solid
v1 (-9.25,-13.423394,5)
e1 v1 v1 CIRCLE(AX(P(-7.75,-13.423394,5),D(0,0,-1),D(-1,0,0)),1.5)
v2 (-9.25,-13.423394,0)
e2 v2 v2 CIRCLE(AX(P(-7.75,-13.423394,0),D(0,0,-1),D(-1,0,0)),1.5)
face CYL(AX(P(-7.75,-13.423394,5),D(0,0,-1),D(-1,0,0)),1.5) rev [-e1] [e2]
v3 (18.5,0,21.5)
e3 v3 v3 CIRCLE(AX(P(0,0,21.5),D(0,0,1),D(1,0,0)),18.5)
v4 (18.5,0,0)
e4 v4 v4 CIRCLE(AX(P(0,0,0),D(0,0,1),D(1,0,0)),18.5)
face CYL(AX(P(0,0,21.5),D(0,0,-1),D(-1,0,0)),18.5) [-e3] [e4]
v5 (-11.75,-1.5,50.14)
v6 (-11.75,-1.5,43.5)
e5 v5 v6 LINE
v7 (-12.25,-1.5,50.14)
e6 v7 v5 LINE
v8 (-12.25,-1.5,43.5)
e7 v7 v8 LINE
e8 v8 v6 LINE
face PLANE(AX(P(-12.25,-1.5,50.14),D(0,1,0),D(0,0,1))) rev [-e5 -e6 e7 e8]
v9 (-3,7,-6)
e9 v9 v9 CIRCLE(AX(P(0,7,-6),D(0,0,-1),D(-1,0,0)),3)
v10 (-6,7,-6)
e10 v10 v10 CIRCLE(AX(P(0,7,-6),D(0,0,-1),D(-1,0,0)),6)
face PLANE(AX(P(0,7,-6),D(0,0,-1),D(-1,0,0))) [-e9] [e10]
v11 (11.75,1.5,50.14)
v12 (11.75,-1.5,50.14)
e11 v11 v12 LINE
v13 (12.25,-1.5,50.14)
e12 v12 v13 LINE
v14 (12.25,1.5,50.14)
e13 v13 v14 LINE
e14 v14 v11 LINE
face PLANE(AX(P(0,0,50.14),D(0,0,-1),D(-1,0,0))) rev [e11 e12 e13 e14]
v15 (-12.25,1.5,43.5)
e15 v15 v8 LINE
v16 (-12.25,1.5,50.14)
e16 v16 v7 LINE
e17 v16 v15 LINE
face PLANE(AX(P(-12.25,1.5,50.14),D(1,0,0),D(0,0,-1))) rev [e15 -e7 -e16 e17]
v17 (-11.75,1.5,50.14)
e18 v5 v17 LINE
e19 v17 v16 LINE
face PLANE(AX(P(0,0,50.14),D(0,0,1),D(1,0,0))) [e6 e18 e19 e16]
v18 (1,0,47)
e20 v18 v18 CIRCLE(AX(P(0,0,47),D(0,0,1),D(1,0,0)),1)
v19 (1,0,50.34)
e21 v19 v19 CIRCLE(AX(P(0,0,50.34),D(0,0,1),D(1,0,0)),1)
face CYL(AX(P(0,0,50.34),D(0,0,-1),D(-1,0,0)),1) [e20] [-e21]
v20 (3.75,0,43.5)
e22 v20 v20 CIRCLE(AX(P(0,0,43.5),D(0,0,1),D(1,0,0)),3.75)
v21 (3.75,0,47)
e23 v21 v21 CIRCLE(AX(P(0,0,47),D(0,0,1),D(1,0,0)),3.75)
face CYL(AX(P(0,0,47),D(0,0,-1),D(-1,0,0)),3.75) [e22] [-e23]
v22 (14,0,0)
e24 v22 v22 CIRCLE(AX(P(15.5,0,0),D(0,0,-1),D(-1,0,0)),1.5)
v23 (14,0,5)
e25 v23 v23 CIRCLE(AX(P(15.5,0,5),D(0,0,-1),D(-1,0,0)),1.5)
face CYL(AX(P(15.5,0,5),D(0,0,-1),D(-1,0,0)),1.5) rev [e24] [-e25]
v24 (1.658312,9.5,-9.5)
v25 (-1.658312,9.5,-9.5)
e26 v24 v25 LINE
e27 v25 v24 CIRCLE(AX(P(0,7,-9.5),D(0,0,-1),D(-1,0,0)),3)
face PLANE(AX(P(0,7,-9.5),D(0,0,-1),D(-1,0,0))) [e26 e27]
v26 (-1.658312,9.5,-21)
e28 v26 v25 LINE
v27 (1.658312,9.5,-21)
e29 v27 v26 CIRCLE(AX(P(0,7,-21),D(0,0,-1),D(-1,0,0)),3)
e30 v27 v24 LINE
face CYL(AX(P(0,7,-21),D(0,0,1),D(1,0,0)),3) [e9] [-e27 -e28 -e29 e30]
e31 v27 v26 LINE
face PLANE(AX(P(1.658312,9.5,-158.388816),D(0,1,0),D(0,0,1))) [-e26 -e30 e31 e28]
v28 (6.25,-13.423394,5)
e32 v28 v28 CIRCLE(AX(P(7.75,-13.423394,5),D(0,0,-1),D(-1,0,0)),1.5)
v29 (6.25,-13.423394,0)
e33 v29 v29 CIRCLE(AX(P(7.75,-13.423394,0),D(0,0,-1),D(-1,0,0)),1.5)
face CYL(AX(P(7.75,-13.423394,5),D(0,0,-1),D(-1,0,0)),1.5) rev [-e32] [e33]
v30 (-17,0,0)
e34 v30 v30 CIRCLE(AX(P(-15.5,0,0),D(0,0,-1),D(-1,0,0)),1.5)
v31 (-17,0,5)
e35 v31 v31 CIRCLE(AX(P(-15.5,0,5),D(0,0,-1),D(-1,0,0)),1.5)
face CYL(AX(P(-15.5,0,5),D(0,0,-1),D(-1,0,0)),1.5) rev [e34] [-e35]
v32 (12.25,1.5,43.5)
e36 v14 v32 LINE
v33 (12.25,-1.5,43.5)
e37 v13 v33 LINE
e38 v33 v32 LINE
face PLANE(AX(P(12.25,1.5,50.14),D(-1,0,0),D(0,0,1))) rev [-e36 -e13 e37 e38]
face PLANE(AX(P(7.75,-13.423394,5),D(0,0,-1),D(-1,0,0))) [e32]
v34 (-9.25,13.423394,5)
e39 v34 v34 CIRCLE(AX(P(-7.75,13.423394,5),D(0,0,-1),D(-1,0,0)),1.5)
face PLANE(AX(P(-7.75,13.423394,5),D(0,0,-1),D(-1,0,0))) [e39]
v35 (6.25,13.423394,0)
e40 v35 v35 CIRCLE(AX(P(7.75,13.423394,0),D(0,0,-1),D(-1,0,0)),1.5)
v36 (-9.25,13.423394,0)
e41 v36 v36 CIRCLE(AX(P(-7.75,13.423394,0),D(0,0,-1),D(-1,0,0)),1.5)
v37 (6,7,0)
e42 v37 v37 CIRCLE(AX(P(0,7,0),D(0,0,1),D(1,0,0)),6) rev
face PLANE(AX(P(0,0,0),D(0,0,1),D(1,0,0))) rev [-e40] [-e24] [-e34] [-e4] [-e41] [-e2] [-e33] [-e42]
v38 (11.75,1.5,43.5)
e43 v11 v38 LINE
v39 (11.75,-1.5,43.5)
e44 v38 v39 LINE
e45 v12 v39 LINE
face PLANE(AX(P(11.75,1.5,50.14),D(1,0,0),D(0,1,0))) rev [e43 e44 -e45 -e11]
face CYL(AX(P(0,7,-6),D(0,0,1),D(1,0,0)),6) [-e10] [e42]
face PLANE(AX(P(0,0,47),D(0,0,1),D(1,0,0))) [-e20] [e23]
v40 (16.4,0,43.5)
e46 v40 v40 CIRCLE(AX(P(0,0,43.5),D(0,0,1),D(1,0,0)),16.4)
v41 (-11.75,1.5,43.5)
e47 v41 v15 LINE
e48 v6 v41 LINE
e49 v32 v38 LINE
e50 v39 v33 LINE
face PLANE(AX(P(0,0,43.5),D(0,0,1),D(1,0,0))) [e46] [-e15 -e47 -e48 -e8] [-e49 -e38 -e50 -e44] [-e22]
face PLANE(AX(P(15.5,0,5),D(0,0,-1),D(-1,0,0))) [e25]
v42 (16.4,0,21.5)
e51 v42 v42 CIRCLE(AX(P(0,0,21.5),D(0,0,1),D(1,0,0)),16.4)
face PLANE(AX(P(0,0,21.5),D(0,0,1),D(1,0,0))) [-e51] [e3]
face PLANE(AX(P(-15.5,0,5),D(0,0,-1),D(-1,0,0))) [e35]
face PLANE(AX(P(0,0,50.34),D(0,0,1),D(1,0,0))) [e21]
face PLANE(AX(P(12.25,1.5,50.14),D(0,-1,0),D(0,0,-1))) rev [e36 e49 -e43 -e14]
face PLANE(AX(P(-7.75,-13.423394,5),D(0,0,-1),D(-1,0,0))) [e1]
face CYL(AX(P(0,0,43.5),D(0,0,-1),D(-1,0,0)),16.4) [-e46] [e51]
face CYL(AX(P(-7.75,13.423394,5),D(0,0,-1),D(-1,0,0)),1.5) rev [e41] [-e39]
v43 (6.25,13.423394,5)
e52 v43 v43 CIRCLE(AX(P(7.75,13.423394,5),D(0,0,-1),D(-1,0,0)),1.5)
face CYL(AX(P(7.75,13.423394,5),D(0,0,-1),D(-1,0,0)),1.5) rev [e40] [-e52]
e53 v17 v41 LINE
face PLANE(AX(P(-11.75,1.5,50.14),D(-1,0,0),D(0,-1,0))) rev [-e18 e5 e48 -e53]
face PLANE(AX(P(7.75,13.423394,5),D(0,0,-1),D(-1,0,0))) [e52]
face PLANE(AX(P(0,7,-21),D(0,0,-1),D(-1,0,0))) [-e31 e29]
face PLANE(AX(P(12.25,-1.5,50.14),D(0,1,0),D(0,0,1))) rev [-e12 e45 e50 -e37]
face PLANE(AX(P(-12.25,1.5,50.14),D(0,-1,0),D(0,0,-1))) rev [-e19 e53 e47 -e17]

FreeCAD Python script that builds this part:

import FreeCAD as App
import Part
import Sketcher
from FreeCAD import Vector
Q = App.Units.Quantity


def add_polygon(sketch, points):
    """Adds a closed chain of lines whose ends are joined by coincident constraints."""
    first, n = sketch.GeometryCount, len(points)
    for a, b in zip(points, points[1:] + points[:1]):
        sketch.addGeometry(Part.LineSegment(App.Vector(*a, 0), App.Vector(*b, 0)), False)
    for i in range(n):
        sketch.addConstraint(Sketcher.Constraint("Coincident", first + i, 2, first + (i + 1) % n, 1))

doc = App.newDocument("Part")
body = doc.addObject("PartDesign::Body", "Body")

# Sketch on XY plane
sketch1 = body.newObject("Sketcher::SketchObject", "Sketch")
sketch1.AttachmentSupport = (doc.getObject("XY_Plane"), [""])
sketch1.MapMode = "FlatFace"
sketch1.addGeometry(Part.Circle(Vector(0, 0, 0), Vector(0, 0, 1), 18), False)
sketch1.addConstraint(Sketcher.Constraint("Coincident", 0, 3, -1, 1))
sketch1.addConstraint(Sketcher.Constraint("Diameter", 0, Q("37 mm")))
pad1 = body.newObject("PartDesign::Pad", "Pad")
pad1.Profile = sketch1
pad1.Length = 21.5

# Sketch on XY plane
sketch2 = body.newObject("Sketcher::SketchObject", "Sketch001")
sketch2.AttachmentSupport = (doc.getObject("XY_Plane"), [""])
sketch2.MapMode = "FlatFace"
sketch2.addGeometry(Part.Circle(Vector(0, 7, 0), Vector(0, 0, 1), 6), False)
sketch2.addConstraint(Sketcher.Constraint("PointOnObject", 0, 3, -2))
sketch2.addConstraint(Sketcher.Constraint("Diameter", 0, Q("12 mm")))
sketch2.addConstraint(Sketcher.Constraint("DistanceY", -1, 1, 0, 3, Q("7 mm")))
pad2 = body.newObject("PartDesign::Pad", "Pad001")
pad2.Profile = sketch2
pad2.Length = 6
pad2.Reversed = True

# Sketch on XY plane
sketch3 = body.newObject("Sketcher::SketchObject", "Sketch002")
sketch3.AttachmentSupport = (doc.getObject("XY_Plane"), [""])
sketch3.MapMode = "FlatFace"
sketch3.AttachmentOffset = App.Placement(Vector(0, 0, -6), App.Rotation())
sketch3.addGeometry(Part.Circle(Vector(0, 7, 0), Vector(0, 0, 1), 3), False)
sketch3.addConstraint(Sketcher.Constraint("PointOnObject", 0, 3, -2))
sketch3.addConstraint(Sketcher.Constraint("Diameter", 0, Q("6 mm")))
sketch3.addConstraint(Sketcher.Constraint("DistanceY", -1, 1, 0, 3, Q("7 mm")))
pad3 = body.newObject("PartDesign::Pad", "Pad002")
pad3.Profile = sketch3
pad3.Length = 15
pad3.Reversed = True

# Sketch on XY plane
sketch4 = body.newObject("Sketcher::SketchObject", "Sketch003")
sketch4.AttachmentSupport = (doc.getObject("XY_Plane"), [""])
sketch4.MapMode = "FlatFace"
sketch4.AttachmentOffset = App.Placement(Vector(0, 0, -21), App.Rotation())
add_polygon(sketch4, [(81, 10), (-81, 10), (-81, 168), (81, 168)])  # lines 0-3
sketch4.addConstraint(Sketcher.Constraint("Horizontal", 0))
sketch4.addConstraint(Sketcher.Constraint("Vertical", 1))
sketch4.addConstraint(Sketcher.Constraint("Horizontal", 2))
sketch4.addConstraint(Sketcher.Constraint("Vertical", 3))
sketch4.addConstraint(Sketcher.Constraint("DistanceY", -1, 1, 0, 2, Q("9.5 mm")))
sketch4.addConstraint(Sketcher.Constraint("DistanceX", 0, 2, 0, 1, Q("161.32286 mm")))
sketch4.addConstraint(Sketcher.Constraint("DistanceY", 1, 1, 1, 2, Q("158.006235 mm")))
sketch4.addConstraint(Sketcher.Constraint("DistanceX", 0, 2, -1, 1, Q("80.66143 mm")))
pocket1 = body.newObject("PartDesign::Pocket", "Pocket")
pocket1.Profile = sketch4
pocket1.Type = "TwoLengths"
pocket1.Length = 1
pocket1.Length2 = 11.5

# Sketch on XY plane
sketch5 = body.newObject("Sketcher::SketchObject", "Sketch004")
sketch5.AttachmentSupport = (doc.getObject("XY_Plane"), [""])
sketch5.MapMode = "FlatFace"
sketch5.addGeometry(Part.Circle(Vector(-15.5, 0, 0), Vector(0, 0, 1), 1.5), False)
sketch5.addGeometry(Part.Circle(Vector(-7.8, -13.4, 0), Vector(0, 0, 1), 1.5), False)
sketch5.addGeometry(Part.Circle(Vector(7.8, -13.4, 0), Vector(0, 0, 1), 1.5), False)
sketch5.addGeometry(Part.Circle(Vector(15.5, 0, 0), Vector(0, 0, 1), 1.5), False)
sketch5.addGeometry(Part.Circle(Vector(7.8, 13.4, 0), Vector(0, 0, 1), 1.5), False)
sketch5.addGeometry(Part.Circle(Vector(-7.8, 13.4, 0), Vector(0, 0, 1), 1.5), False)
sketch5.addConstraint(Sketcher.Constraint("Equal", 0, 1))
sketch5.addConstraint(Sketcher.Constraint("Equal", 1, 2))
sketch5.addConstraint(Sketcher.Constraint("Equal", 2, 3))
sketch5.addConstraint(Sketcher.Constraint("Equal", 3, 4))
sketch5.addConstraint(Sketcher.Constraint("Equal", 4, 5))
sketch5.addConstraint(Sketcher.Constraint("Symmetric", 0, 3, 3, 3, -1, 1))
sketch5.addConstraint(Sketcher.Constraint("Symmetric", 1, 3, 4, 3, -1, 1))
sketch5.addConstraint(Sketcher.Constraint("Symmetric", 2, 3, 5, 3, -1, 1))
sketch5.addConstraint(Sketcher.Constraint("Symmetric", 1, 3, 2, 3, -2))
sketch5.addConstraint(Sketcher.Constraint("PointOnObject", 0, 3, -1))
sketch5.addConstraint(Sketcher.Constraint("Diameter", 0, Q("3 mm")))
sketch5.addConstraint(Sketcher.Constraint("DistanceX", 0, 3, 3, 3, Q("31 mm")))
sketch5.addConstraint(Sketcher.Constraint("DistanceX", 1, 3, 2, 3, Q("15.5 mm")))
sketch5.addConstraint(Sketcher.Constraint("DistanceY", 1, 3, -1, 1, Q("13.423394 mm")))
pocket2 = body.newObject("PartDesign::Pocket", "Pocket001")
pocket2.Profile = sketch5
pocket2.Length = 5
pocket2.Reversed = True

# Sketch on XY plane
sketch6 = body.newObject("Sketcher::SketchObject", "Sketch005")
sketch6.AttachmentSupport = (doc.getObject("XY_Plane"), [""])
sketch6.MapMode = "FlatFace"
sketch6.AttachmentOffset = App.Placement(Vector(0, 0, 21.5), App.Rotation())
sketch6.addGeometry(Part.Circle(Vector(0, 0, 0), Vector(0, 0, 1), 16), False)
sketch6.addConstraint(Sketcher.Constraint("Coincident", 0, 3, -1, 1))
sketch6.addConstraint(Sketcher.Constraint("Diameter", 0, Q("32.8 mm")))
pad4 = body.newObject("PartDesign::Pad", "Pad003")
pad4.Profile = sketch6
pad4.Length = 22

# Sketch on XY plane
sketch7 = body.newObject("Sketcher::SketchObject", "Sketch006")
sketch7.AttachmentSupport = (doc.getObject("XY_Plane"), [""])
sketch7.MapMode = "FlatFace"
sketch7.AttachmentOffset = App.Placement(Vector(0, 0, 43.5), App.Rotation())
sketch7.addGeometry(Part.Circle(Vector(0, 0, 0), Vector(0, 0, 1), 1), False)
sketch7.addConstraint(Sketcher.Constraint("Coincident", 0, 3, -1, 1))
sketch7.addConstraint(Sketcher.Constraint("Diameter", 0, Q("2 mm")))
pad5 = body.newObject("PartDesign::Pad", "Pad004")
pad5.Profile = sketch7
pad5.Length = 6.84

# Sketch on XY plane
sketch8 = body.newObject("Sketcher::SketchObject", "Sketch007")
sketch8.AttachmentSupport = (doc.getObject("XY_Plane"), [""])
sketch8.MapMode = "FlatFace"
sketch8.AttachmentOffset = App.Placement(Vector(0, 0, 43.5), App.Rotation())
sketch8.addGeometry(Part.Circle(Vector(0, 0, 0), Vector(0, 0, 1), 3.8), False)
sketch8.addConstraint(Sketcher.Constraint("Coincident", 0, 3, -1, 1))
sketch8.addConstraint(Sketcher.Constraint("Diameter", 0, Q("7.5 mm")))
pad6 = body.newObject("PartDesign::Pad", "Pad005")
pad6.Profile = sketch8
pad6.Length = 3.5

# Sketch on XY plane
sketch9 = body.newObject("Sketcher::SketchObject", "Sketch008")
sketch9.AttachmentSupport = (doc.getObject("XY_Plane"), [""])
sketch9.MapMode = "FlatFace"
sketch9.AttachmentOffset = App.Placement(Vector(0, 0, 43.5), App.Rotation())
add_polygon(sketch9, [(-12.2, 1.5), (-12.2, -1.5), (-11.8, -1.5), (-11.8, 1.5)])  # lines 0-3
add_polygon(sketch9, [(11.8, 1.5), (11.8, -1.5), (12.2, -1.5), (12.2, 1.5)])  # lines 4-7
sketch9.addConstraint(Sketcher.Constraint("Vertical", 0))
sketch9.addConstraint(Sketcher.Constraint("Horizontal", 1))
sketch9.addConstraint(Sketcher.Constraint("Vertical", 2))
sketch9.addConstraint(Sketcher.Constraint("Horizontal", 3))
sketch9.addConstraint(Sketcher.Constraint("Vertical", 4))
sketch9.addConstraint(Sketcher.Constraint("Horizontal", 5))
sketch9.addConstraint(Sketcher.Constraint("Vertical", 6))
sketch9.addConstraint(Sketcher.Constraint("Horizontal", 7))
sketch9.addConstraint(Sketcher.Constraint("Symmetric", 2, 2, 4, 2, -1, 1))
sketch9.addConstraint(Sketcher.Constraint("Symmetric", 0, 2, 6, 2, -1, 1))
sketch9.addConstraint(Sketcher.Constraint("Horizontal", 1, 2, 4, 2))
sketch9.addConstraint(Sketcher.Constraint("DistanceY", 0, 2, 0, 1, Q("3 mm")))
sketch9.addConstraint(Sketcher.Constraint("DistanceX", 1, 1, 1, 2, Q("0.5 mm")))
sketch9.addConstraint(Sketcher.Constraint("DistanceX", 0, 2, 4, 2, Q("24 mm")))
pad7 = body.newObject("PartDesign::Pad", "Pad006")
pad7.Profile = sketch9
pad7.Length = 6.64

doc.recompute()
